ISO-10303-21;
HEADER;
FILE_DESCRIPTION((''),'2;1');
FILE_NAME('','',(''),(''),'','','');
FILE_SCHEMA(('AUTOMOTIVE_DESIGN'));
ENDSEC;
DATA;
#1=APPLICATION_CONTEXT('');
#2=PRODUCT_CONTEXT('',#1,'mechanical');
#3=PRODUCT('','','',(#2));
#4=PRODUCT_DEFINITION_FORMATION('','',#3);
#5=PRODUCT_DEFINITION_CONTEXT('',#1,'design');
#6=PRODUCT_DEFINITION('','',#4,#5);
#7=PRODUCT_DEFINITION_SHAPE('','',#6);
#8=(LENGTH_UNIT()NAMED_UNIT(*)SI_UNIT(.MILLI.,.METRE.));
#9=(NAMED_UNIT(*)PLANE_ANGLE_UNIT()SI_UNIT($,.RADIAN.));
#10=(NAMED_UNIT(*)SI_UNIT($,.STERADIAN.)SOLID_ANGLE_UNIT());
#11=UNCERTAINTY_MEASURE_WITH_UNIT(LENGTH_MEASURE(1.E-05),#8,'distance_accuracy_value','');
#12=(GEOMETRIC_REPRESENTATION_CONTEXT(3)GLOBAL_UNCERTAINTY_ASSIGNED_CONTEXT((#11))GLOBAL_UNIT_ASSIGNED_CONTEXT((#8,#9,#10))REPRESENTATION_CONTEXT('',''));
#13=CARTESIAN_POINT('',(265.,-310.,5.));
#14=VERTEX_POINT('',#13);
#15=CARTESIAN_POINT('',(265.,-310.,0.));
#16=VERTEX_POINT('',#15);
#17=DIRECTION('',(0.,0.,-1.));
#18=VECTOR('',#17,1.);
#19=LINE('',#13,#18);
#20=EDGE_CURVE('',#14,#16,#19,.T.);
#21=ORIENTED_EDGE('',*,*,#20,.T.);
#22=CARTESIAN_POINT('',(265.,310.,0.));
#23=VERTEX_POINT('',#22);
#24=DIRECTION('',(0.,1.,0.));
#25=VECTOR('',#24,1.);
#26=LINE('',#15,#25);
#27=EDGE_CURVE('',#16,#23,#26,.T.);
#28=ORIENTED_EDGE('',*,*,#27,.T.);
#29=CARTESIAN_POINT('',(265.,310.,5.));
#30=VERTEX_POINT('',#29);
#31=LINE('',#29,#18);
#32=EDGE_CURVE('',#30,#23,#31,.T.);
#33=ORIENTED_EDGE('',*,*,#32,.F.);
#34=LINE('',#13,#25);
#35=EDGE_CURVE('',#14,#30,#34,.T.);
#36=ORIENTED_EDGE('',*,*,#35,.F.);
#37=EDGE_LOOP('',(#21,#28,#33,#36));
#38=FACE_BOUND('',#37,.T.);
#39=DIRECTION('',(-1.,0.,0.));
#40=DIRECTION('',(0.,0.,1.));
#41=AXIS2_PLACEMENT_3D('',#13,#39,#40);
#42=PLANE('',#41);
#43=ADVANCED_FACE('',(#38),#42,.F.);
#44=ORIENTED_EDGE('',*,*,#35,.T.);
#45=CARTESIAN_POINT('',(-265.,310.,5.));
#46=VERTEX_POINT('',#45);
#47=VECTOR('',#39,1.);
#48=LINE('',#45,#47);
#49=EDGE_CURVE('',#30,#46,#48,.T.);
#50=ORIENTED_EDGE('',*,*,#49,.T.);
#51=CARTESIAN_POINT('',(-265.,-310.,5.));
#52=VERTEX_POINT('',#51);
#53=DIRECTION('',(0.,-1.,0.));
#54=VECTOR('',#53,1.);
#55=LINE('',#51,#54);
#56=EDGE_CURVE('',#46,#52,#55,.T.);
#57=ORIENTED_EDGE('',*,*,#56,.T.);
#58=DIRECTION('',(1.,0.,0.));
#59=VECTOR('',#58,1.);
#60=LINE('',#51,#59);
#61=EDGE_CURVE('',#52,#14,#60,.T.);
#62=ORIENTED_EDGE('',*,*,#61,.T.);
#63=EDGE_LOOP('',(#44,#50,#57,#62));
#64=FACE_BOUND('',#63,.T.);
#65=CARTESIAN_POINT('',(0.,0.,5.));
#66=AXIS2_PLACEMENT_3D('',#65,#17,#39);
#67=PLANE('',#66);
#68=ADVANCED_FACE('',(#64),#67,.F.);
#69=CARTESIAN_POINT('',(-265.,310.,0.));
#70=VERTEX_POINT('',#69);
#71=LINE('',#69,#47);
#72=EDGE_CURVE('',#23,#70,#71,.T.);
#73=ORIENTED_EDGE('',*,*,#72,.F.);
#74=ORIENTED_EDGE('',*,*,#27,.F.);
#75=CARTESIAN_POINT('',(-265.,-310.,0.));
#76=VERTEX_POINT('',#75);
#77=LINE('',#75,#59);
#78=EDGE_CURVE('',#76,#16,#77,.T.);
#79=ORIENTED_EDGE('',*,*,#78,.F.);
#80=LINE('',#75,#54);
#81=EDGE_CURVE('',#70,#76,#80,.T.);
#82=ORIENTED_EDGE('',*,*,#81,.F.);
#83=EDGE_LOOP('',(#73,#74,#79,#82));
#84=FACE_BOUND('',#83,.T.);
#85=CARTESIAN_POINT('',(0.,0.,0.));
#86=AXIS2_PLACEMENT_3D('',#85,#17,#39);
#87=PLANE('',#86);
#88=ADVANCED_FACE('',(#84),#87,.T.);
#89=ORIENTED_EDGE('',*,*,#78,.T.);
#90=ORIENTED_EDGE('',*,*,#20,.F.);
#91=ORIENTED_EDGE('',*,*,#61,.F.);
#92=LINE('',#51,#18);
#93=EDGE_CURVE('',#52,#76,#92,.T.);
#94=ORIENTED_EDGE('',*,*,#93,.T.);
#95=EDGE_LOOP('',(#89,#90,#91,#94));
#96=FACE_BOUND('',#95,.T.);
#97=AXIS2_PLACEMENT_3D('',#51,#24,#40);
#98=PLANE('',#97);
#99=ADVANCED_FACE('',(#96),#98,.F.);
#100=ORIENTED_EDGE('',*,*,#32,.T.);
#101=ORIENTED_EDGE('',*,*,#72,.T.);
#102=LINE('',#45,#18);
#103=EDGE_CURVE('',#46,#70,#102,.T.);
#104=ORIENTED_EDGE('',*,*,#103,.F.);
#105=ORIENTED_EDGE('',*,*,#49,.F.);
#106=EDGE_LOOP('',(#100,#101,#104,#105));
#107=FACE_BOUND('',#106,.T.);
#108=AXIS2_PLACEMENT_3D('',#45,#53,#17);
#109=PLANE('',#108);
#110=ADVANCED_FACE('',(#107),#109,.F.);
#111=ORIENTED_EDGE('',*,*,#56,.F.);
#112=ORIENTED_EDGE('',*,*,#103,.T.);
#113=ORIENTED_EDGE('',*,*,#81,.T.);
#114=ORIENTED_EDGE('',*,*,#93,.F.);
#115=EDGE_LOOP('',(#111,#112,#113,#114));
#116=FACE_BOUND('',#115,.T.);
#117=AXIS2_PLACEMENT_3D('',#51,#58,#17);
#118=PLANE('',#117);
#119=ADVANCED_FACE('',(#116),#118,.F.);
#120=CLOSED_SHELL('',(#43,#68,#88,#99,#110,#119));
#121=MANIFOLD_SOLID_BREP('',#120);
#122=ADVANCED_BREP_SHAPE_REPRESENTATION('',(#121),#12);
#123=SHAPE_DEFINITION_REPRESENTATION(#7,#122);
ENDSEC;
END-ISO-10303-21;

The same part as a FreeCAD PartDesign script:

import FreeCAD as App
import Part
import Sketcher

V = App.Vector

doc = App.newDocument("Part")
params = doc.addObject("Spreadsheet::Sheet", "Params")
for row, (alias, value) in enumerate([
    ("sketch1_width", "530 mm"),
    ("sketch1_height", "620 mm"),
    ("pad1_length", "5 mm"),
], start=1):
    params.set(f"A{row}", alias)
    params.set(f"B{row}", "=" + value)
    params.setAlias(f"B{row}", alias)

body = doc.addObject("PartDesign::Body", "Body")

# Sketch on XY plane
sketch1 = body.newObject("Sketcher::SketchObject", "Sketch")
sketch1.AttachmentSupport = (doc.getObject("XY_Plane"), [""])
sketch1.MapMode = "FlatFace"
sketch1.addGeometry(Part.LineSegment(V(-265, 310, 0), V(-265, -310, 0)), False)
sketch1.addGeometry(Part.LineSegment(V(-265, -310, 0), V(265, -310, 0)), False)
sketch1.addGeometry(Part.LineSegment(V(265, -310, 0), V(265, 310, 0)), False)
sketch1.addGeometry(Part.LineSegment(V(265, 310, 0), V(-265, 310, 0)), False)
sketch1.addConstraint(Sketcher.Constraint("Coincident", 0, 2, 1, 1))
sketch1.addConstraint(Sketcher.Constraint("Coincident", 1, 2, 2, 1))
sketch1.addConstraint(Sketcher.Constraint("Coincident", 2, 2, 3, 1))
sketch1.addConstraint(Sketcher.Constraint("Coincident", 3, 2, 0, 1))
sketch1.addConstraint(Sketcher.Constraint("Vertical", 0))
sketch1.addConstraint(Sketcher.Constraint("Horizontal", 1))
sketch1.addConstraint(Sketcher.Constraint("Vertical", 2))
sketch1.addConstraint(Sketcher.Constraint("Horizontal", 3))
sketch1.addConstraint(Sketcher.Constraint("Symmetric", 0, 2, 2, 2, -1, 1))
sketch1.addConstraint(Sketcher.Constraint("DistanceX", 1, 1, 1, 2, 530.0))
sketch1.addConstraint(Sketcher.Constraint("DistanceY", 0, 2, 0, 1, 620.0))
sketch1.setExpression("Constraints[9]", "Params.sketch1_width")
sketch1.setExpression("Constraints[10]", "Params.sketch1_height")
pad1 = body.newObject("PartDesign::Pad", "Pad")
pad1.Profile = sketch1
pad1.setExpression("Length", "Params.pad1_length")

doc.recompute()
